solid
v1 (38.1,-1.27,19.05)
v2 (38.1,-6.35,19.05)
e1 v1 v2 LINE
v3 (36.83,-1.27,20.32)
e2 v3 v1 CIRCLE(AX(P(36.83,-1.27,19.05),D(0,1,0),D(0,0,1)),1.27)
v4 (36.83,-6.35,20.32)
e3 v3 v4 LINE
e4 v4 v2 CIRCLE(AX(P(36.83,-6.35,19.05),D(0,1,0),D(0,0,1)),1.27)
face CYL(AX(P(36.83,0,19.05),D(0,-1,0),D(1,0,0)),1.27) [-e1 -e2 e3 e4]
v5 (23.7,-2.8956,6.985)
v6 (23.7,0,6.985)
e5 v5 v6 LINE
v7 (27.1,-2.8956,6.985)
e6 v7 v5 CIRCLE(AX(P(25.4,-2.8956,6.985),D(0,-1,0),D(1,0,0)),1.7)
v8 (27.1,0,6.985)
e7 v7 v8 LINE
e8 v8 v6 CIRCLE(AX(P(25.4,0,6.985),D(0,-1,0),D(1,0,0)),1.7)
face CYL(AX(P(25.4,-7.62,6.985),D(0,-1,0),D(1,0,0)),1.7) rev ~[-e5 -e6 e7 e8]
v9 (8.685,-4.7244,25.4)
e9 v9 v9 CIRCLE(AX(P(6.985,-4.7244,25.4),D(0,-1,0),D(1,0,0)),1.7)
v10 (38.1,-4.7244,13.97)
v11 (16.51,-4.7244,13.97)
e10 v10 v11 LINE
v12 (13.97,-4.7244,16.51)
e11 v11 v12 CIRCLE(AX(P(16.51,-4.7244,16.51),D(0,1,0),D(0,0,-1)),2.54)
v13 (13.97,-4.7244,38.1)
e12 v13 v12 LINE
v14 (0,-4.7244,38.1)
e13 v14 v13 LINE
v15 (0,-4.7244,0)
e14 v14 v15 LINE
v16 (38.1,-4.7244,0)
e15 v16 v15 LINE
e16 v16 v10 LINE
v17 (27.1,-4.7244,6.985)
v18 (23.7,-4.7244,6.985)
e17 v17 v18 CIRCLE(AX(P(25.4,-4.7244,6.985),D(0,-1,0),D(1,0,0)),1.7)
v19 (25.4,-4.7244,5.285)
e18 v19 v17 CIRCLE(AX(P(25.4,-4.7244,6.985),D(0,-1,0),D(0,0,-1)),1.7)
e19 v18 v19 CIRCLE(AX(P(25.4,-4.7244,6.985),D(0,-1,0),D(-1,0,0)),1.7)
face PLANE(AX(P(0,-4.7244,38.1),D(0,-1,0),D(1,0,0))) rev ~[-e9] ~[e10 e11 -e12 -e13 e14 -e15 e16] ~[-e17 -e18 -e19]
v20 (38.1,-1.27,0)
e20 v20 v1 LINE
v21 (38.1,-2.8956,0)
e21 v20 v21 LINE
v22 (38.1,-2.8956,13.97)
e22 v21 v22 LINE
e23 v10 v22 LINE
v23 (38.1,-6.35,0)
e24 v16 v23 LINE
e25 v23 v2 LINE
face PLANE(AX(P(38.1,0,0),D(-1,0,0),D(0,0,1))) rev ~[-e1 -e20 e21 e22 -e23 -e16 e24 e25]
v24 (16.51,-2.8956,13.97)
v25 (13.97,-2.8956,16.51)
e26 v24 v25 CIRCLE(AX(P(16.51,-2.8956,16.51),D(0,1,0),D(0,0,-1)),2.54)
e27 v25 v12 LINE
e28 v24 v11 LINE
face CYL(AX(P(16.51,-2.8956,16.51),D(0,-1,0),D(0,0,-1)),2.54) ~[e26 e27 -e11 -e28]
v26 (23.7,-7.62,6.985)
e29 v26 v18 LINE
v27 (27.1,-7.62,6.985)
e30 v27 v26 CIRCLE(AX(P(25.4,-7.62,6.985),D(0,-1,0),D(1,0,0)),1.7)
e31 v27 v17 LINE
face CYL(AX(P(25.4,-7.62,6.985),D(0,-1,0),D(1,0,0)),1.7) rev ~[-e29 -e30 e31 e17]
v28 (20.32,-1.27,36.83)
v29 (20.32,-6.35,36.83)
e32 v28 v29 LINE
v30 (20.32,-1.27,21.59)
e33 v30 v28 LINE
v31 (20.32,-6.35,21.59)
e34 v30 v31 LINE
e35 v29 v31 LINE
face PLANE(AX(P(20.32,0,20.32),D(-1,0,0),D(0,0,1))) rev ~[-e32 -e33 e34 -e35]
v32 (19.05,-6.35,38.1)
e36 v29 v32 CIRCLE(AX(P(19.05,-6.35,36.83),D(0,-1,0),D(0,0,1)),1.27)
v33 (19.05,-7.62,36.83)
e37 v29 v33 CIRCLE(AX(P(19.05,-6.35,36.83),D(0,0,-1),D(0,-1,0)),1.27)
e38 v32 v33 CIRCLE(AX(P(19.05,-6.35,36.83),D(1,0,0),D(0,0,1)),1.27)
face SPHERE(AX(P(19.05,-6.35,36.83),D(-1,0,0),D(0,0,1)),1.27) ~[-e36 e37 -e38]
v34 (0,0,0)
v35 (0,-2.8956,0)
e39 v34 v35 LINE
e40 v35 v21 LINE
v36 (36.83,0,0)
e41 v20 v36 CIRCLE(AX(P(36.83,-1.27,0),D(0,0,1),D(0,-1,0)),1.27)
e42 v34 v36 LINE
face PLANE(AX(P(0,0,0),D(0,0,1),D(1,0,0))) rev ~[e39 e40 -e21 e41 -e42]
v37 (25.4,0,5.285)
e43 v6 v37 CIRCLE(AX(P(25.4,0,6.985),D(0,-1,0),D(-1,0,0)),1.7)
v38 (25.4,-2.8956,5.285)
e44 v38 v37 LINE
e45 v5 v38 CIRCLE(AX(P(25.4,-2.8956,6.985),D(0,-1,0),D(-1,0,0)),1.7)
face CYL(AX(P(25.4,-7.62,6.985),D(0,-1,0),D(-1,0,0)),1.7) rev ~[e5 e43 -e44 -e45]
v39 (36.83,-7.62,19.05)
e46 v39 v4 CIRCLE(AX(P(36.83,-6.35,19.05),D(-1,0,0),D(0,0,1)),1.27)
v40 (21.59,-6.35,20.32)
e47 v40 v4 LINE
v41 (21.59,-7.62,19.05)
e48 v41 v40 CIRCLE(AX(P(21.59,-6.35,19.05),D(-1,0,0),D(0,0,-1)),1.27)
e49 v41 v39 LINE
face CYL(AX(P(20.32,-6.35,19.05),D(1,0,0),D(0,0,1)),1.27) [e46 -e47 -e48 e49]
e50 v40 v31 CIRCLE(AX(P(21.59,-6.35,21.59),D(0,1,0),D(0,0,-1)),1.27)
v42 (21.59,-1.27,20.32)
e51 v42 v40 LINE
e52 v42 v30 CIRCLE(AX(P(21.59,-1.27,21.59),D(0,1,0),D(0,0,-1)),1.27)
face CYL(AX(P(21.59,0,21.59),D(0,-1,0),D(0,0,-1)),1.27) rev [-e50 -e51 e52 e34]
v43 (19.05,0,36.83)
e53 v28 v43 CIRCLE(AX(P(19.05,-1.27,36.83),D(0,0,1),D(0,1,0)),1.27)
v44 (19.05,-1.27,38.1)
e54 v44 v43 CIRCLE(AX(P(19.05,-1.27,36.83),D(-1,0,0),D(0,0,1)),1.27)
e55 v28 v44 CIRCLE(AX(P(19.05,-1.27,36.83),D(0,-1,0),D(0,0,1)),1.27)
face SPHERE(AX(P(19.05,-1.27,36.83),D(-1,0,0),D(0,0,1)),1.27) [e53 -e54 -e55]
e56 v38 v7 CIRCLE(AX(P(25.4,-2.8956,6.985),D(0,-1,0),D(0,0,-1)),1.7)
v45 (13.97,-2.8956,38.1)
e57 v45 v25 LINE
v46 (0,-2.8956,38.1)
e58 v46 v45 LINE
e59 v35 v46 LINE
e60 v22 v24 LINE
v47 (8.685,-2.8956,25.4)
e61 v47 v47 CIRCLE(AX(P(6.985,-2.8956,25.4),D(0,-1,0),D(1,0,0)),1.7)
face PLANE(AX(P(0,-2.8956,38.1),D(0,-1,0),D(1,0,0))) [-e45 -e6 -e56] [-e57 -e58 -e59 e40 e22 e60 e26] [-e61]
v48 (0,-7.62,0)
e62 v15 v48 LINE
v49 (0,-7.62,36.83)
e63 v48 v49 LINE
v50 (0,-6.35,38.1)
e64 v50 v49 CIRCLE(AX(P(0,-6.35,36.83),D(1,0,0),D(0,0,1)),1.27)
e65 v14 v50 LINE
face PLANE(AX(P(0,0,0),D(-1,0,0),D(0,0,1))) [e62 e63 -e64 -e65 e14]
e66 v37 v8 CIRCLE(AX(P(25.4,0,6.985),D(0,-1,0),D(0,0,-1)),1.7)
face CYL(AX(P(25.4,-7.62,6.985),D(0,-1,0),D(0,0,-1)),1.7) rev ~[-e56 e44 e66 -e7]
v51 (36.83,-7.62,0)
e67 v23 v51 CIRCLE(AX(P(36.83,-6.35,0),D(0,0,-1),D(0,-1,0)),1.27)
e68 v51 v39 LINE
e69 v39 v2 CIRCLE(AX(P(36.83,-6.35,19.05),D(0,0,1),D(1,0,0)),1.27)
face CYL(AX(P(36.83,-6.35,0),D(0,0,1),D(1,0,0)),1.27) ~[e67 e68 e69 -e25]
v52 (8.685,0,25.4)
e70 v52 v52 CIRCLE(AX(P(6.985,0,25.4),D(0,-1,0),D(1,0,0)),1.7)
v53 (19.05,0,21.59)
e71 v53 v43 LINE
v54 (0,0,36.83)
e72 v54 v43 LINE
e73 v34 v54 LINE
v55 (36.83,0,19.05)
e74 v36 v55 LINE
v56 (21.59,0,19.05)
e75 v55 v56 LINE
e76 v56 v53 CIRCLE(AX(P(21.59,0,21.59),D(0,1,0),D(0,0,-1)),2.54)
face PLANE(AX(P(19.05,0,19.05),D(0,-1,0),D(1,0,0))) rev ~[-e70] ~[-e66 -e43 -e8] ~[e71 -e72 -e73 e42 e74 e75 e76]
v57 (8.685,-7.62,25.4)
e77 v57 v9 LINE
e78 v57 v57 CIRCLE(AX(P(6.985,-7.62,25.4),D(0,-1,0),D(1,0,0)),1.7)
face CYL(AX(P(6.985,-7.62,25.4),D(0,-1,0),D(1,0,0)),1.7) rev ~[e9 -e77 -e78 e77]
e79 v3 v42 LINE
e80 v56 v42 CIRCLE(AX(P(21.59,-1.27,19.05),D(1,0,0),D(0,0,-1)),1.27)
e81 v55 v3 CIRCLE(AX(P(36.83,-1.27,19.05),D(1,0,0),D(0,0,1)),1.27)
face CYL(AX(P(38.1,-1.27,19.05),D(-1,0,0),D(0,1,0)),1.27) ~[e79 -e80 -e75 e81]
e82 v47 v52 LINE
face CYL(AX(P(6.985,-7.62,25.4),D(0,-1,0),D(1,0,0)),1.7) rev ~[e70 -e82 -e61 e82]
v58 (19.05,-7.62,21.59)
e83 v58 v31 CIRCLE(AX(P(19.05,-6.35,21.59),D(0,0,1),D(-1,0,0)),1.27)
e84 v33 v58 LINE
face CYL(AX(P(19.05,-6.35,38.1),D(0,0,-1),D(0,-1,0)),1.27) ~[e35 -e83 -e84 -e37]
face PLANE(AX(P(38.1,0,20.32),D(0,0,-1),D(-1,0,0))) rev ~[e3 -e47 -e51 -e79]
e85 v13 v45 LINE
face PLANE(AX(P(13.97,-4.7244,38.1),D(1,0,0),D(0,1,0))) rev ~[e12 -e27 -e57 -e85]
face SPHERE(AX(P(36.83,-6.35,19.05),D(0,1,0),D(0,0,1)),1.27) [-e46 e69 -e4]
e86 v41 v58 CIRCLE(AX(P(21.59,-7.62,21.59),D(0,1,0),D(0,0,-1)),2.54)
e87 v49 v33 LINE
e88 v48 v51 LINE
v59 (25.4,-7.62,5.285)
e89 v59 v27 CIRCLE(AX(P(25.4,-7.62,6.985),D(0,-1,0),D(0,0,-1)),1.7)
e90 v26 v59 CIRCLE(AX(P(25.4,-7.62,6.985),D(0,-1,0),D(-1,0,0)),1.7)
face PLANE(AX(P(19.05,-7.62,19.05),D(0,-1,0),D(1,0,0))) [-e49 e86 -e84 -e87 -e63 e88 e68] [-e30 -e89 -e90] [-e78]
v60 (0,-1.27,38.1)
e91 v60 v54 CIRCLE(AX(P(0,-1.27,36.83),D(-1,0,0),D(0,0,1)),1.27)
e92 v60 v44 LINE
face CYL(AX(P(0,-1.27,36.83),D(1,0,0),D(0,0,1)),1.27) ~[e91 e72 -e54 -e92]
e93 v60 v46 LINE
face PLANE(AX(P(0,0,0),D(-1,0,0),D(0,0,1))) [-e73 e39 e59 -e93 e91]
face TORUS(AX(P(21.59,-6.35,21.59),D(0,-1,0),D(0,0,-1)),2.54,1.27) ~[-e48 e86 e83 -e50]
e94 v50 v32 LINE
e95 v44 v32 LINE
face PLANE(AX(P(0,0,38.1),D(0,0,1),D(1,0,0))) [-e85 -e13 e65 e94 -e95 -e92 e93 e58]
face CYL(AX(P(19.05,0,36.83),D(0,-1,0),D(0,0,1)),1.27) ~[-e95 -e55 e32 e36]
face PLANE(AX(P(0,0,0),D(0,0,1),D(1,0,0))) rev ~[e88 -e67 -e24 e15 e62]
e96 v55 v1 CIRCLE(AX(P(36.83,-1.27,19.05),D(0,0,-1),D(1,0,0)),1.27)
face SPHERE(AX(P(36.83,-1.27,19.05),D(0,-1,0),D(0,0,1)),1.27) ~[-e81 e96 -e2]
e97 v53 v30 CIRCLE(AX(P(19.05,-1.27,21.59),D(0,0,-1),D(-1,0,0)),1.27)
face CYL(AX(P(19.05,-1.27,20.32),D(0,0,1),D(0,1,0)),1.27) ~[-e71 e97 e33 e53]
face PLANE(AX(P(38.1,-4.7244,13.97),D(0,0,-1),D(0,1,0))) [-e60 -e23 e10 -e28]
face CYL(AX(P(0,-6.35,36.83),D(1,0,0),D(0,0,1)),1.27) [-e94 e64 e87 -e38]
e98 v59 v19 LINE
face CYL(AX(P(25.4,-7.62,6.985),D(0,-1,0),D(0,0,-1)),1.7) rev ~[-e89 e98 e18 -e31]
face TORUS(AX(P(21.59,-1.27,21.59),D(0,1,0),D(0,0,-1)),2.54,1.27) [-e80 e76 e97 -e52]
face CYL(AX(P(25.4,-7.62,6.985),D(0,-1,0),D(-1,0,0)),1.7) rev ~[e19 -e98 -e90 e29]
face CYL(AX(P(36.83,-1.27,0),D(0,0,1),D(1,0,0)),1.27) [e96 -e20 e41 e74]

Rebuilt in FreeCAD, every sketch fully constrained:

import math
import FreeCAD as App
import Part
import Sketcher
Q = App.Units.Quantity


def edges_at(feature, points):
    """Names of the edges that pass closest to the given points."""
    edges = feature.Shape.Edges
    near = lambda p: min(range(len(edges)), key=lambda i: edges[i].distToShape(Part.Vertex(*p))[0])
    return sorted({f"Edge{near(p) + 1}" for p in points})

doc = App.newDocument("Part")
body = doc.addObject("PartDesign::Body", "Body")

# Sketch on XZ plane
sketch1 = doc.addObject("Sketcher::SketchObject", "Sketch")
body.addObject(sketch1)
sketch1.AttachmentSupport = (doc.XZ_Plane, [""])
sketch1.MapMode = "FlatFace"
sketch1.addGeometry(Part.LineSegment(App.Vector(0, 38.1, 0), App.Vector(0, 0, 0)), False)
sketch1.addGeometry(Part.LineSegment(App.Vector(0, 0, 0), App.Vector(38.1, 0, 0)), False)
sketch1.addGeometry(Part.LineSegment(App.Vector(38.1, 0, 0), App.Vector(38.1, 38.1, 0)), False)
sketch1.addGeometry(Part.LineSegment(App.Vector(38.1, 38.1, 0), App.Vector(0, 38.1, 0)), False)
sketch1.addConstraint(Sketcher.Constraint("Coincident", 0, 2, 1, 1))
sketch1.addConstraint(Sketcher.Constraint("Coincident", 1, 2, 2, 1))
sketch1.addConstraint(Sketcher.Constraint("Coincident", 2, 2, 3, 1))
sketch1.addConstraint(Sketcher.Constraint("Coincident", 3, 2, 0, 1))
sketch1.addConstraint(Sketcher.Constraint("Vertical", 0))
sketch1.addConstraint(Sketcher.Constraint("Horizontal", 1))
sketch1.addConstraint(Sketcher.Constraint("Vertical", 2))
sketch1.addConstraint(Sketcher.Constraint("Horizontal", 3))
sketch1.addConstraint(Sketcher.Constraint("Coincident", 0, 2, -1, 1))
sketch1.addConstraint(Sketcher.Constraint("Equal", 3, 0))
sketch1.addConstraint(Sketcher.Constraint("DistanceX", 1, 1, 1, 2, Q("1.5 in")))
pad1 = doc.addObject("PartDesign::Pad", "Pad")
body.addObject(pad1)
pad1.Profile = sketch1
pad1.Length = Q("0.3 in")

# Sketch on YZ plane
sketch2 = doc.addObject("Sketcher::SketchObject", "Sketch001")
body.addObject(sketch2)
sketch2.AttachmentSupport = (doc.YZ_Plane, [""])
sketch2.MapMode = "FlatFace"
sketch2.AttachmentOffset = App.Placement(App.Vector(0, 0, 1.5 * 25.4), App.Rotation())
sketch2.addGeometry(Part.LineSegment(App.Vector(-4.7244, 13.97, 0), App.Vector(-4.7244, 0, 0)), False)
sketch2.addGeometry(Part.LineSegment(App.Vector(-4.7244, 0, 0), App.Vector(-2.8956, 0, 0)), False)
sketch2.addGeometry(Part.LineSegment(App.Vector(-2.8956, 0, 0), App.Vector(-2.8956, 13.97, 0)), False)
sketch2.addGeometry(Part.LineSegment(App.Vector(-2.8956, 13.97, 0), App.Vector(-4.7244, 13.97, 0)), False)
sketch2.addConstraint(Sketcher.Constraint("Coincident", 0, 2, 1, 1))
sketch2.addConstraint(Sketcher.Constraint("Coincident", 1, 2, 2, 1))
sketch2.addConstraint(Sketcher.Constraint("Coincident", 2, 2, 3, 1))
sketch2.addConstraint(Sketcher.Constraint("Coincident", 3, 2, 0, 1))
sketch2.addConstraint(Sketcher.Constraint("Vertical", 0))
sketch2.addConstraint(Sketcher.Constraint("Horizontal", 1))
sketch2.addConstraint(Sketcher.Constraint("Vertical", 2))
sketch2.addConstraint(Sketcher.Constraint("Horizontal", 3))
sketch2.addConstraint(Sketcher.Constraint("PointOnObject", 0, 2, -1))
sketch2.addConstraint(Sketcher.Constraint("DistanceY", 0, 2, 0, 1, Q("0.55 in")))
sketch2.addConstraint(Sketcher.Constraint("DistanceX", 1, 1, 1, 2, Q("0.072 in")))
sketch2.addConstraint(Sketcher.Constraint("DistanceX", 0, 2, -1, 1, Q("0.186 in")))
pocket1 = doc.addObject("PartDesign::Pocket", "Pocket")
body.addObject(pocket1)
pocket1.Profile = sketch2
pocket1.Type = "ThroughAll"

# Sketch on XY plane
sketch3 = doc.addObject("Sketcher::SketchObject", "Sketch002")
body.addObject(sketch3)
sketch3.AttachmentSupport = (doc.XY_Plane, [""])
sketch3.MapMode = "FlatFace"
sketch3.AttachmentOffset = App.Placement(App.Vector(0, 0, 1.5 * 25.4), App.Rotation())
sketch3.addGeometry(Part.LineSegment(App.Vector(0, -2.8956, 0), App.Vector(0, -4.7244, 0)), False)
sketch3.addGeometry(Part.LineSegment(App.Vector(0, -4.7244, 0), App.Vector(13.97, -4.7244, 0)), False)
sketch3.addGeometry(Part.LineSegment(App.Vector(13.97, -4.7244, 0), App.Vector(13.97, -2.8956, 0)), False)
sketch3.addGeometry(Part.LineSegment(App.Vector(13.97, -2.8956, 0), App.Vector(0, -2.8956, 0)), False)
sketch3.addConstraint(Sketcher.Constraint("Coincident", 0, 2, 1, 1))
sketch3.addConstraint(Sketcher.Constraint("Coincident", 1, 2, 2, 1))
sketch3.addConstraint(Sketcher.Constraint("Coincident", 2, 2, 3, 1))
sketch3.addConstraint(Sketcher.Constraint("Coincident", 3, 2, 0, 1))
sketch3.addConstraint(Sketcher.Constraint("Vertical", 0))
sketch3.addConstraint(Sketcher.Constraint("Horizontal", 1))
sketch3.addConstraint(Sketcher.Constraint("Vertical", 2))
sketch3.addConstraint(Sketcher.Constraint("Horizontal", 3))
sketch3.addConstraint(Sketcher.Constraint("PointOnObject", 0, 2, -2))
sketch3.addConstraint(Sketcher.Constraint("DistanceX", 1, 1, 1, 2, Q("0.55 in")))
sketch3.addConstraint(Sketcher.Constraint("DistanceY", 0, 2, 0, 1, Q("0.072 in")))
sketch3.addConstraint(Sketcher.Constraint("DistanceY", 0, 2, -1, 1, Q("0.186 in")))
pocket2 = doc.addObject("PartDesign::Pocket", "Pocket001")
body.addObject(pocket2)
pocket2.Profile = sketch3
pocket2.Type = "ThroughAll"

# Sketch on XZ plane
sketch4 = doc.addObject("Sketcher::SketchObject", "Sketch003")
body.addObject(sketch4)
sketch4.AttachmentSupport = (doc.XZ_Plane, [""])
sketch4.MapMode = "FlatFace"
sketch4.addGeometry(Part.LineSegment(App.Vector(38.1, 38.1, 0), App.Vector(38.1, 20.32, 0)), False)
sketch4.addGeometry(Part.LineSegment(App.Vector(38.1, 20.32, 0), App.Vector(20.32, 20.32, 0)), False)
sketch4.addGeometry(Part.LineSegment(App.Vector(20.32, 20.32, 0), App.Vector(20.32, 38.1, 0)), False)
sketch4.addGeometry(Part.LineSegment(App.Vector(20.32, 38.1, 0), App.Vector(38.1, 38.1, 0)), False)
sketch4.addConstraint(Sketcher.Constraint("Coincident", 0, 2, 1, 1))
sketch4.addConstraint(Sketcher.Constraint("Coincident", 1, 2, 2, 1))
sketch4.addConstraint(Sketcher.Constraint("Coincident", 2, 2, 3, 1))
sketch4.addConstraint(Sketcher.Constraint("Coincident", 3, 2, 0, 1))
sketch4.addConstraint(Sketcher.Constraint("Vertical", 0))
sketch4.addConstraint(Sketcher.Constraint("Horizontal", 1))
sketch4.addConstraint(Sketcher.Constraint("Vertical", 2))
sketch4.addConstraint(Sketcher.Constraint("Horizontal", 3))
sketch4.addConstraint(Sketcher.Constraint("Equal", 3, 0))
sketch4.addConstraint(Sketcher.Constraint("DistanceX", 1, 2, 1, 1, Q("0.7 in")))
sketch4.addConstraint(Sketcher.Constraint("DistanceX", -1, 1, 0, 2, Q("1.5 in")))
sketch4.addConstraint(Sketcher.Constraint("DistanceY", -1, 1, 0, 2, Q("0.8 in")))
pocket3 = doc.addObject("PartDesign::Pocket", "Pocket002")
body.addObject(pocket3)
pocket3.Profile = sketch4
pocket3.Type = "ThroughAll"
pocket3.Reversed = True
doc.recompute()

fillet = doc.addObject("PartDesign::Fillet", "Fillet")
body.addObject(fillet)
fillet.Base = (pocket3, edges_at(pocket3, [(13.97, -3.81, 13.97)]))
fillet.Radius = Q("0.1 in")

# Sketch on XZ plane
sketch5 = doc.addObject("Sketcher::SketchObject", "Sketch004")
body.addObject(sketch5)
sketch5.AttachmentSupport = (doc.XZ_Plane, [""])
sketch5.MapMode = "FlatFace"
sketch5.AttachmentOffset = App.Placement(App.Vector(0, 0, 0.3 * 25.4), App.Rotation())
sketch5.addGeometry(Part.Circle(App.Vector(6.985, 25.4, 0), App.Vector(0, 0, 1), 1.7), False)
sketch5.addGeometry(Part.ArcOfCircle(Part.Circle(App.Vector(25.4, 6.985, 0), App.Vector(0, 0, 1), 1.7), math.radians(180), math.radians(270)), False)
sketch5.addGeometry(Part.ArcOfCircle(Part.Circle(App.Vector(25.4, 6.985, 0), App.Vector(0, 0, 1), 1.7), math.radians(-90), math.radians(0)), False)
sketch5.addGeometry(Part.ArcOfCircle(Part.Circle(App.Vector(25.4, 6.985, 0), App.Vector(0, 0, 1), 1.7), math.radians(0), math.radians(180)), False)
sketch5.addConstraint(Sketcher.Constraint("Tangent", 1, 2, 2, 1))
sketch5.addConstraint(Sketcher.Constraint("Tangent", 2, 2, 3, 1))
sketch5.addConstraint(Sketcher.Constraint("Tangent", 3, 2, 1, 1))
sketch5.addConstraint(Sketcher.Constraint("Equal", 0, 1))
sketch5.addConstraint(Sketcher.Constraint("Horizontal", 3, 3, 2, 2))
sketch5.addConstraint(Sketcher.Constraint("Horizontal", 2, 2, 3, 2))
sketch5.addConstraint(Sketcher.Constraint("Vertical", 3, 3, 1, 2))
sketch5.addConstraint(Sketcher.Constraint("DistanceY", -1, 1, 0, 3, Q("1 in")))
sketch5.addConstraint(Sketcher.Constraint("DistanceX", -1, 1, 1, 3, Q("1 in")))
sketch5.addConstraint(Sketcher.Constraint("Diameter", 0, Q("3.4 mm")))
sketch5.addConstraint(Sketcher.Constraint("DistanceX", -1, 1, 0, 3, Q("0.275 in")))
sketch5.addConstraint(Sketcher.Constraint("DistanceY", -1, 1, 1, 3, Q("0.275 in")))
pocket4 = doc.addObject("PartDesign::Pocket", "Pocket003")
body.addObject(pocket4)
pocket4.Profile = sketch5
pocket4.Type = "ThroughAll"
doc.recompute()

fillet2 = doc.addObject("PartDesign::Fillet", "Fillet001")
body.addObject(fillet2)
fillet2.Base = (pocket4, edges_at(pocket4, [
    (10.16, 0, 38.1),
    (10.16, -7.62, 38.1),
    (20.32, -3.81, 38.1),
    (20.32, 0, 29.21),
    (20.32, -7.62, 29.21),
    (20.32, -3.81, 20.32),
    (38.1, -3.81, 20.32),
    (29.21, 0, 20.32),
    (29.21, -7.62, 20.32),
    (38.1, 0, 10.16),
    (38.1, -7.62, 10.16),
]))
fillet2.Radius = Q("0.05 in")

doc.recompute()
